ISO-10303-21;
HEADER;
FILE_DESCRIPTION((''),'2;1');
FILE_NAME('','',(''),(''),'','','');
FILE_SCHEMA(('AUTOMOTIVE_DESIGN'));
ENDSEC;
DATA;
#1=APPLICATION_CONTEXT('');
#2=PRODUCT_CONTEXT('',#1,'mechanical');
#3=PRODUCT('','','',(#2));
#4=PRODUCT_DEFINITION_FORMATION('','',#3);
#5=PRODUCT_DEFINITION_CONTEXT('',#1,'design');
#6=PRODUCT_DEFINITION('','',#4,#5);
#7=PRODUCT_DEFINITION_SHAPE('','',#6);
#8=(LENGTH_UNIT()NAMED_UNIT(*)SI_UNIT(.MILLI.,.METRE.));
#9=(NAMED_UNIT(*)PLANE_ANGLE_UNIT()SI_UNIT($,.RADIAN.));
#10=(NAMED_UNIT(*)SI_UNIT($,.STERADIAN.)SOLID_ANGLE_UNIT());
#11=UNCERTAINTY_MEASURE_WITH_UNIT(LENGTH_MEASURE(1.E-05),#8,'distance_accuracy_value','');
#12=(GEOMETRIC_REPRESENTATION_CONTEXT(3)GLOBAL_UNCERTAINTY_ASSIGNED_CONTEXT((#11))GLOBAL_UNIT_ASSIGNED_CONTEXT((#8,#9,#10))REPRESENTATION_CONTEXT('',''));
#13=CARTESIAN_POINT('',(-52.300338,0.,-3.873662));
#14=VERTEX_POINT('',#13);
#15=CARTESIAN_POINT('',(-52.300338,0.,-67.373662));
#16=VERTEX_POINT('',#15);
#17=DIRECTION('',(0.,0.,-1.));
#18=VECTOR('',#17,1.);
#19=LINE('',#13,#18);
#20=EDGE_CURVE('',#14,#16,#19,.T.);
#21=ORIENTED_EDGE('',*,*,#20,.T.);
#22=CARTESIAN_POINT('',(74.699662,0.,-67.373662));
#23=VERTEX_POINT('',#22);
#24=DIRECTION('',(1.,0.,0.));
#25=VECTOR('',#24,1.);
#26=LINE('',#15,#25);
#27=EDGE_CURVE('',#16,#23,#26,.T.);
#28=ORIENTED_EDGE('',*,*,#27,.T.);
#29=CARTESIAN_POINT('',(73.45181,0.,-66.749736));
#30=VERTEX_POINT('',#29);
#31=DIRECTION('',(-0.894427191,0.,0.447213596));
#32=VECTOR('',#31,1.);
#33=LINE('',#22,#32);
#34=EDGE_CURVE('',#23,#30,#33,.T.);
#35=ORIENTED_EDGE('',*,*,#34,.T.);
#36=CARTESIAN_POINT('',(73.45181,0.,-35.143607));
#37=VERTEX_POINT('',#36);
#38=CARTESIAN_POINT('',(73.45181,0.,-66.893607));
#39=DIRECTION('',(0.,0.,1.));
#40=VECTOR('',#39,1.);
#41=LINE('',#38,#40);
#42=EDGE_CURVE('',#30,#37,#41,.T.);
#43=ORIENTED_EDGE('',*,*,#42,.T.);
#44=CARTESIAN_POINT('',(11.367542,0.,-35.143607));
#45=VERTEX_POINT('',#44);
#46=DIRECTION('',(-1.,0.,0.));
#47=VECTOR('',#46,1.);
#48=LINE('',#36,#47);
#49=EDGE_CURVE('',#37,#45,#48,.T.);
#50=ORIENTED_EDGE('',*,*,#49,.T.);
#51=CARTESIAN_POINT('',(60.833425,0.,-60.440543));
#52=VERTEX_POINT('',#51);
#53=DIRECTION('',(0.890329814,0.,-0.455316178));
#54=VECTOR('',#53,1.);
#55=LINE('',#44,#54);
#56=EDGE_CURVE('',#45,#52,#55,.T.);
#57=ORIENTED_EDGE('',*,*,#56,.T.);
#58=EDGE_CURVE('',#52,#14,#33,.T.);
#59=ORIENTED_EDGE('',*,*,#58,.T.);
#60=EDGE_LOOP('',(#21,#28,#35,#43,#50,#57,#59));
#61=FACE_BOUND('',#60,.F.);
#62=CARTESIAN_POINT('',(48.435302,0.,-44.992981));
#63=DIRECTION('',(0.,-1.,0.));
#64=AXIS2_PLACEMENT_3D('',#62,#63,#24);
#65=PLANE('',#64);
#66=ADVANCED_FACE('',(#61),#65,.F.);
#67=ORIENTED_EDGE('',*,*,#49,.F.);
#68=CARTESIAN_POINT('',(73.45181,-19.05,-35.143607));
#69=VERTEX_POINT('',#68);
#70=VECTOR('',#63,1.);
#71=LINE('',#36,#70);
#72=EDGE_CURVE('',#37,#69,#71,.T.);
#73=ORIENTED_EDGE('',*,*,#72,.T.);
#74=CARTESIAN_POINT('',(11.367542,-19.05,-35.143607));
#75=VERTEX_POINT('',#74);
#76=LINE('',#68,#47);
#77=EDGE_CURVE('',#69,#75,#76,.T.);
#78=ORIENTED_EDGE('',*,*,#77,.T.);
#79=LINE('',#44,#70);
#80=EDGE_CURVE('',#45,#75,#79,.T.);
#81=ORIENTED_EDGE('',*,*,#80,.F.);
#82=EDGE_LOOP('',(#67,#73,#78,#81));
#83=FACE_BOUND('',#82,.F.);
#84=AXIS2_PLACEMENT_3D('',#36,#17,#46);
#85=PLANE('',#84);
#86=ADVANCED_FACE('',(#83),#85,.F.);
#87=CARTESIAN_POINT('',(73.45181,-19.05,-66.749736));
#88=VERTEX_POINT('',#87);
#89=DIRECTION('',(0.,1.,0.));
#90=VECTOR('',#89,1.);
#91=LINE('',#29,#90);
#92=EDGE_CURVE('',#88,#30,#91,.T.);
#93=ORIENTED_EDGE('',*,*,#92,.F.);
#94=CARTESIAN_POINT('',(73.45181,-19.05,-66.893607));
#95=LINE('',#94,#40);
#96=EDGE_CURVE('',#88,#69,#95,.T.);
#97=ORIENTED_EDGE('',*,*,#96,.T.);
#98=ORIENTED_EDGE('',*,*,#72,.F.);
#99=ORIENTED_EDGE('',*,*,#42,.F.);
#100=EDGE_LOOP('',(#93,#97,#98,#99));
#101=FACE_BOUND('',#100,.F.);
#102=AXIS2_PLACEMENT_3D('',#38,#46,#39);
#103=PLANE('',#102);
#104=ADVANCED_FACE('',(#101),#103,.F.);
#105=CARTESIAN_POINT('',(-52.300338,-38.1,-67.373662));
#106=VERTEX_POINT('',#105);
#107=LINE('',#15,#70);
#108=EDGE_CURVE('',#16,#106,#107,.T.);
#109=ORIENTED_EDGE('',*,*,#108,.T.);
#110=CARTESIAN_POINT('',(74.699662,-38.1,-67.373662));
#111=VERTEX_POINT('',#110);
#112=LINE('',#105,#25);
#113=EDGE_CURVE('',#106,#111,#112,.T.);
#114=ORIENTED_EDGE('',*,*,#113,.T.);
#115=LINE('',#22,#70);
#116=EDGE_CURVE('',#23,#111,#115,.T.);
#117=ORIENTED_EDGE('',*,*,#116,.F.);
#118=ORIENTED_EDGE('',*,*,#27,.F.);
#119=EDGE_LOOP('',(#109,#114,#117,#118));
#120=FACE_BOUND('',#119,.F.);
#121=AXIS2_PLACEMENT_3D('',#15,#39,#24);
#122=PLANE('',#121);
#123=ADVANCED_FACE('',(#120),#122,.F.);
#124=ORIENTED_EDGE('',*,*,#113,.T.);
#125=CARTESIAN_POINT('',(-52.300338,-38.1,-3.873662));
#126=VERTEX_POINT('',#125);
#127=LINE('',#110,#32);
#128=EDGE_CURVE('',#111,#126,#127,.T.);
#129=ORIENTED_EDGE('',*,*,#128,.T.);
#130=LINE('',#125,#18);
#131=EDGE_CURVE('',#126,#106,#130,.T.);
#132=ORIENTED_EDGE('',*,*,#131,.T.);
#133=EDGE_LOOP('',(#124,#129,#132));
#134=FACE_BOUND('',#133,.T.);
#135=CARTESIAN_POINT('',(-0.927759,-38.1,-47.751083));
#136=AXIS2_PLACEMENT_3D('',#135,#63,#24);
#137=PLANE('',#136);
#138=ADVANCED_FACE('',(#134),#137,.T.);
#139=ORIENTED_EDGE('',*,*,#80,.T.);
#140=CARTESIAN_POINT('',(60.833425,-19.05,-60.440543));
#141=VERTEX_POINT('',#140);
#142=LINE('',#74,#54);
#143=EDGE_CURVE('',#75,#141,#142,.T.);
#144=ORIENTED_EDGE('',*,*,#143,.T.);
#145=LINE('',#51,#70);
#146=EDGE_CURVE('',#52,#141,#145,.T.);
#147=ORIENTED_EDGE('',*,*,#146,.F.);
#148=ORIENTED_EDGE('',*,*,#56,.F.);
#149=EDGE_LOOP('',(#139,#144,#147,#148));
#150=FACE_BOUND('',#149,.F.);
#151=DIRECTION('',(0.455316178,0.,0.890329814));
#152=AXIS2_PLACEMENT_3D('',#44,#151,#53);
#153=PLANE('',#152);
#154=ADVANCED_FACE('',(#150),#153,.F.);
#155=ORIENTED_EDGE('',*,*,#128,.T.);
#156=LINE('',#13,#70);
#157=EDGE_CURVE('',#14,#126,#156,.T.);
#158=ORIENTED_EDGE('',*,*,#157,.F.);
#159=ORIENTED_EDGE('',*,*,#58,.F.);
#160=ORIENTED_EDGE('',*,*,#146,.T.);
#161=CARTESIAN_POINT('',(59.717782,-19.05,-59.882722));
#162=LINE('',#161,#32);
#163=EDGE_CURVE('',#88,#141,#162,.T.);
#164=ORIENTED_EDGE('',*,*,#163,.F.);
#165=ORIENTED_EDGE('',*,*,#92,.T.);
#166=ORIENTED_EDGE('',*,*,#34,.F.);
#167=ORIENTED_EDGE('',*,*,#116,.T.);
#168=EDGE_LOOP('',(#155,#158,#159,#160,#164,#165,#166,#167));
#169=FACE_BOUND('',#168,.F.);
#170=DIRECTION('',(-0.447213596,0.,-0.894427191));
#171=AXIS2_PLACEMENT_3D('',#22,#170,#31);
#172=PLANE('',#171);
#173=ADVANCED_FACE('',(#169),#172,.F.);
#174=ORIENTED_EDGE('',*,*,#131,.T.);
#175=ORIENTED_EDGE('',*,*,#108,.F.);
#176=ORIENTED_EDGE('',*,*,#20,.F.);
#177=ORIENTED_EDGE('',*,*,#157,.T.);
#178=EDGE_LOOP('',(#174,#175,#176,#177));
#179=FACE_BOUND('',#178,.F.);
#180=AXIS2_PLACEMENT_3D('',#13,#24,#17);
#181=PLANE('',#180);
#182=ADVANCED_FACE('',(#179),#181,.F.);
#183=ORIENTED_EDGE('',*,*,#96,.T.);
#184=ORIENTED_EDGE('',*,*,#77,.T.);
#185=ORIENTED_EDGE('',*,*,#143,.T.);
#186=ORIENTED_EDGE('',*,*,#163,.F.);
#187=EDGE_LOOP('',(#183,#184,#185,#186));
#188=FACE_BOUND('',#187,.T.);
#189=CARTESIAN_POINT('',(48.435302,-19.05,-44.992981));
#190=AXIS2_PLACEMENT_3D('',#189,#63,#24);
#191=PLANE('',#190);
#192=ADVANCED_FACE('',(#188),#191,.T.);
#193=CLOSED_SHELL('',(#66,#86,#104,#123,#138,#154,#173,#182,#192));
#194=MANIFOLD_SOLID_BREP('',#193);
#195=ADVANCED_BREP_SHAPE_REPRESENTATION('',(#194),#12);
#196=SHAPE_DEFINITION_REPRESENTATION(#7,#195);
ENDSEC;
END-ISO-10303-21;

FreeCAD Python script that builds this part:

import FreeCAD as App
import Part
import Sketcher
from FreeCAD import Vector
Q = App.Units.Quantity

doc = App.newDocument("Part")
params = doc.addObject("Spreadsheet::Sheet", "Params")
for row, (alias, value) in enumerate([
    ("sketch1_width", "5 in"),
    ("sketch1_height", "2.5 in"),
    ("pad1_length", "1.5 in"),
    ("sketch2_height", "1.25 in"),
    ("pad2_length", "0.75 in"),
], start=1):
    params.set(f"A{row}", alias)
    params.set(f"B{row}", "=" + value)
    params.setAlias(f"B{row}", alias)

body = doc.addObject("PartDesign::Body", "Body")

# Sketch on XZ plane
sketch1 = body.newObject("Sketcher::SketchObject", "Sketch")
sketch1.AttachmentSupport = (doc.getObject("XZ_Plane"), [""])
sketch1.MapMode = "FlatFace"
sketch1.addGeometry([
    Part.LineSegment(Vector(-52, -4, 0), Vector(-52, -67, 0)),
    Part.LineSegment(Vector(-52, -67, 0), Vector(75, -67, 0)),
    Part.LineSegment(Vector(75, -67, 0), Vector(-52, -4, 0)),
], False)
sketch1.addConstraint([
    Sketcher.Constraint("Coincident", 0, 2, 1, 1),
    Sketcher.Constraint("Coincident", 1, 2, 2, 1),
    Sketcher.Constraint("Coincident", 2, 2, 0, 1),
    Sketcher.Constraint("Vertical", 0),
    Sketcher.Constraint("Horizontal", 1),
    Sketcher.Constraint("DistanceX", 1, 1, 1, 2, Q("5 in")),
    Sketcher.Constraint("DistanceY", 0, 2, 0, 1, Q("2.5 in")),
    Sketcher.Constraint("DistanceX", 0, 2, -1, 1, Q("52.300338 mm")),
    Sketcher.Constraint("DistanceY", 0, 2, -1, 1, Q("67.373662 mm")),
])
sketch1.setExpression("Constraints[5]", "Params.sketch1_width")
sketch1.setExpression("Constraints[6]", "Params.sketch1_height")
pad1 = body.newObject("PartDesign::Pad", "Pad")
pad1.Profile = sketch1
pad1.setExpression("Length", "Params.pad1_length")

# Sketch on XZ plane
sketch2 = body.newObject("Sketcher::SketchObject", "Sketch001")
sketch2.AttachmentSupport = (doc.getObject("XZ_Plane"), [""])
sketch2.MapMode = "FlatFace"
sketch2.addGeometry([
    Part.LineSegment(Vector(11, -35, 0), Vector(73, -67, 0)),
    Part.LineSegment(Vector(73, -67, 0), Vector(73, -35, 0)),
    Part.LineSegment(Vector(73, -35, 0), Vector(11, -35, 0)),
], False)
sketch2.addConstraint([
    Sketcher.Constraint("Coincident", 0, 2, 1, 1),
    Sketcher.Constraint("Coincident", 1, 2, 2, 1),
    Sketcher.Constraint("Coincident", 2, 2, 0, 1),
    Sketcher.Constraint("Vertical", 1),
    Sketcher.Constraint("Horizontal", 2),
    Sketcher.Constraint("DistanceY", 1, 1, 1, 2, Q("1.25 in")),
    Sketcher.Constraint("DistanceX", 2, 2, 2, 1, Q("62.084268 mm")),
    Sketcher.Constraint("DistanceX", -1, 1, 0, 2, Q("73.45181 mm")),
    Sketcher.Constraint("DistanceY", 0, 2, -1, 1, Q("66.893607 mm")),
])
sketch2.setExpression("Constraints[5]", "Params.sketch2_height")
pad2 = body.newObject("PartDesign::Pad", "Pad001")
pad2.Profile = sketch2
pad2.setExpression("Length", "Params.pad2_length")

doc.recompute()
